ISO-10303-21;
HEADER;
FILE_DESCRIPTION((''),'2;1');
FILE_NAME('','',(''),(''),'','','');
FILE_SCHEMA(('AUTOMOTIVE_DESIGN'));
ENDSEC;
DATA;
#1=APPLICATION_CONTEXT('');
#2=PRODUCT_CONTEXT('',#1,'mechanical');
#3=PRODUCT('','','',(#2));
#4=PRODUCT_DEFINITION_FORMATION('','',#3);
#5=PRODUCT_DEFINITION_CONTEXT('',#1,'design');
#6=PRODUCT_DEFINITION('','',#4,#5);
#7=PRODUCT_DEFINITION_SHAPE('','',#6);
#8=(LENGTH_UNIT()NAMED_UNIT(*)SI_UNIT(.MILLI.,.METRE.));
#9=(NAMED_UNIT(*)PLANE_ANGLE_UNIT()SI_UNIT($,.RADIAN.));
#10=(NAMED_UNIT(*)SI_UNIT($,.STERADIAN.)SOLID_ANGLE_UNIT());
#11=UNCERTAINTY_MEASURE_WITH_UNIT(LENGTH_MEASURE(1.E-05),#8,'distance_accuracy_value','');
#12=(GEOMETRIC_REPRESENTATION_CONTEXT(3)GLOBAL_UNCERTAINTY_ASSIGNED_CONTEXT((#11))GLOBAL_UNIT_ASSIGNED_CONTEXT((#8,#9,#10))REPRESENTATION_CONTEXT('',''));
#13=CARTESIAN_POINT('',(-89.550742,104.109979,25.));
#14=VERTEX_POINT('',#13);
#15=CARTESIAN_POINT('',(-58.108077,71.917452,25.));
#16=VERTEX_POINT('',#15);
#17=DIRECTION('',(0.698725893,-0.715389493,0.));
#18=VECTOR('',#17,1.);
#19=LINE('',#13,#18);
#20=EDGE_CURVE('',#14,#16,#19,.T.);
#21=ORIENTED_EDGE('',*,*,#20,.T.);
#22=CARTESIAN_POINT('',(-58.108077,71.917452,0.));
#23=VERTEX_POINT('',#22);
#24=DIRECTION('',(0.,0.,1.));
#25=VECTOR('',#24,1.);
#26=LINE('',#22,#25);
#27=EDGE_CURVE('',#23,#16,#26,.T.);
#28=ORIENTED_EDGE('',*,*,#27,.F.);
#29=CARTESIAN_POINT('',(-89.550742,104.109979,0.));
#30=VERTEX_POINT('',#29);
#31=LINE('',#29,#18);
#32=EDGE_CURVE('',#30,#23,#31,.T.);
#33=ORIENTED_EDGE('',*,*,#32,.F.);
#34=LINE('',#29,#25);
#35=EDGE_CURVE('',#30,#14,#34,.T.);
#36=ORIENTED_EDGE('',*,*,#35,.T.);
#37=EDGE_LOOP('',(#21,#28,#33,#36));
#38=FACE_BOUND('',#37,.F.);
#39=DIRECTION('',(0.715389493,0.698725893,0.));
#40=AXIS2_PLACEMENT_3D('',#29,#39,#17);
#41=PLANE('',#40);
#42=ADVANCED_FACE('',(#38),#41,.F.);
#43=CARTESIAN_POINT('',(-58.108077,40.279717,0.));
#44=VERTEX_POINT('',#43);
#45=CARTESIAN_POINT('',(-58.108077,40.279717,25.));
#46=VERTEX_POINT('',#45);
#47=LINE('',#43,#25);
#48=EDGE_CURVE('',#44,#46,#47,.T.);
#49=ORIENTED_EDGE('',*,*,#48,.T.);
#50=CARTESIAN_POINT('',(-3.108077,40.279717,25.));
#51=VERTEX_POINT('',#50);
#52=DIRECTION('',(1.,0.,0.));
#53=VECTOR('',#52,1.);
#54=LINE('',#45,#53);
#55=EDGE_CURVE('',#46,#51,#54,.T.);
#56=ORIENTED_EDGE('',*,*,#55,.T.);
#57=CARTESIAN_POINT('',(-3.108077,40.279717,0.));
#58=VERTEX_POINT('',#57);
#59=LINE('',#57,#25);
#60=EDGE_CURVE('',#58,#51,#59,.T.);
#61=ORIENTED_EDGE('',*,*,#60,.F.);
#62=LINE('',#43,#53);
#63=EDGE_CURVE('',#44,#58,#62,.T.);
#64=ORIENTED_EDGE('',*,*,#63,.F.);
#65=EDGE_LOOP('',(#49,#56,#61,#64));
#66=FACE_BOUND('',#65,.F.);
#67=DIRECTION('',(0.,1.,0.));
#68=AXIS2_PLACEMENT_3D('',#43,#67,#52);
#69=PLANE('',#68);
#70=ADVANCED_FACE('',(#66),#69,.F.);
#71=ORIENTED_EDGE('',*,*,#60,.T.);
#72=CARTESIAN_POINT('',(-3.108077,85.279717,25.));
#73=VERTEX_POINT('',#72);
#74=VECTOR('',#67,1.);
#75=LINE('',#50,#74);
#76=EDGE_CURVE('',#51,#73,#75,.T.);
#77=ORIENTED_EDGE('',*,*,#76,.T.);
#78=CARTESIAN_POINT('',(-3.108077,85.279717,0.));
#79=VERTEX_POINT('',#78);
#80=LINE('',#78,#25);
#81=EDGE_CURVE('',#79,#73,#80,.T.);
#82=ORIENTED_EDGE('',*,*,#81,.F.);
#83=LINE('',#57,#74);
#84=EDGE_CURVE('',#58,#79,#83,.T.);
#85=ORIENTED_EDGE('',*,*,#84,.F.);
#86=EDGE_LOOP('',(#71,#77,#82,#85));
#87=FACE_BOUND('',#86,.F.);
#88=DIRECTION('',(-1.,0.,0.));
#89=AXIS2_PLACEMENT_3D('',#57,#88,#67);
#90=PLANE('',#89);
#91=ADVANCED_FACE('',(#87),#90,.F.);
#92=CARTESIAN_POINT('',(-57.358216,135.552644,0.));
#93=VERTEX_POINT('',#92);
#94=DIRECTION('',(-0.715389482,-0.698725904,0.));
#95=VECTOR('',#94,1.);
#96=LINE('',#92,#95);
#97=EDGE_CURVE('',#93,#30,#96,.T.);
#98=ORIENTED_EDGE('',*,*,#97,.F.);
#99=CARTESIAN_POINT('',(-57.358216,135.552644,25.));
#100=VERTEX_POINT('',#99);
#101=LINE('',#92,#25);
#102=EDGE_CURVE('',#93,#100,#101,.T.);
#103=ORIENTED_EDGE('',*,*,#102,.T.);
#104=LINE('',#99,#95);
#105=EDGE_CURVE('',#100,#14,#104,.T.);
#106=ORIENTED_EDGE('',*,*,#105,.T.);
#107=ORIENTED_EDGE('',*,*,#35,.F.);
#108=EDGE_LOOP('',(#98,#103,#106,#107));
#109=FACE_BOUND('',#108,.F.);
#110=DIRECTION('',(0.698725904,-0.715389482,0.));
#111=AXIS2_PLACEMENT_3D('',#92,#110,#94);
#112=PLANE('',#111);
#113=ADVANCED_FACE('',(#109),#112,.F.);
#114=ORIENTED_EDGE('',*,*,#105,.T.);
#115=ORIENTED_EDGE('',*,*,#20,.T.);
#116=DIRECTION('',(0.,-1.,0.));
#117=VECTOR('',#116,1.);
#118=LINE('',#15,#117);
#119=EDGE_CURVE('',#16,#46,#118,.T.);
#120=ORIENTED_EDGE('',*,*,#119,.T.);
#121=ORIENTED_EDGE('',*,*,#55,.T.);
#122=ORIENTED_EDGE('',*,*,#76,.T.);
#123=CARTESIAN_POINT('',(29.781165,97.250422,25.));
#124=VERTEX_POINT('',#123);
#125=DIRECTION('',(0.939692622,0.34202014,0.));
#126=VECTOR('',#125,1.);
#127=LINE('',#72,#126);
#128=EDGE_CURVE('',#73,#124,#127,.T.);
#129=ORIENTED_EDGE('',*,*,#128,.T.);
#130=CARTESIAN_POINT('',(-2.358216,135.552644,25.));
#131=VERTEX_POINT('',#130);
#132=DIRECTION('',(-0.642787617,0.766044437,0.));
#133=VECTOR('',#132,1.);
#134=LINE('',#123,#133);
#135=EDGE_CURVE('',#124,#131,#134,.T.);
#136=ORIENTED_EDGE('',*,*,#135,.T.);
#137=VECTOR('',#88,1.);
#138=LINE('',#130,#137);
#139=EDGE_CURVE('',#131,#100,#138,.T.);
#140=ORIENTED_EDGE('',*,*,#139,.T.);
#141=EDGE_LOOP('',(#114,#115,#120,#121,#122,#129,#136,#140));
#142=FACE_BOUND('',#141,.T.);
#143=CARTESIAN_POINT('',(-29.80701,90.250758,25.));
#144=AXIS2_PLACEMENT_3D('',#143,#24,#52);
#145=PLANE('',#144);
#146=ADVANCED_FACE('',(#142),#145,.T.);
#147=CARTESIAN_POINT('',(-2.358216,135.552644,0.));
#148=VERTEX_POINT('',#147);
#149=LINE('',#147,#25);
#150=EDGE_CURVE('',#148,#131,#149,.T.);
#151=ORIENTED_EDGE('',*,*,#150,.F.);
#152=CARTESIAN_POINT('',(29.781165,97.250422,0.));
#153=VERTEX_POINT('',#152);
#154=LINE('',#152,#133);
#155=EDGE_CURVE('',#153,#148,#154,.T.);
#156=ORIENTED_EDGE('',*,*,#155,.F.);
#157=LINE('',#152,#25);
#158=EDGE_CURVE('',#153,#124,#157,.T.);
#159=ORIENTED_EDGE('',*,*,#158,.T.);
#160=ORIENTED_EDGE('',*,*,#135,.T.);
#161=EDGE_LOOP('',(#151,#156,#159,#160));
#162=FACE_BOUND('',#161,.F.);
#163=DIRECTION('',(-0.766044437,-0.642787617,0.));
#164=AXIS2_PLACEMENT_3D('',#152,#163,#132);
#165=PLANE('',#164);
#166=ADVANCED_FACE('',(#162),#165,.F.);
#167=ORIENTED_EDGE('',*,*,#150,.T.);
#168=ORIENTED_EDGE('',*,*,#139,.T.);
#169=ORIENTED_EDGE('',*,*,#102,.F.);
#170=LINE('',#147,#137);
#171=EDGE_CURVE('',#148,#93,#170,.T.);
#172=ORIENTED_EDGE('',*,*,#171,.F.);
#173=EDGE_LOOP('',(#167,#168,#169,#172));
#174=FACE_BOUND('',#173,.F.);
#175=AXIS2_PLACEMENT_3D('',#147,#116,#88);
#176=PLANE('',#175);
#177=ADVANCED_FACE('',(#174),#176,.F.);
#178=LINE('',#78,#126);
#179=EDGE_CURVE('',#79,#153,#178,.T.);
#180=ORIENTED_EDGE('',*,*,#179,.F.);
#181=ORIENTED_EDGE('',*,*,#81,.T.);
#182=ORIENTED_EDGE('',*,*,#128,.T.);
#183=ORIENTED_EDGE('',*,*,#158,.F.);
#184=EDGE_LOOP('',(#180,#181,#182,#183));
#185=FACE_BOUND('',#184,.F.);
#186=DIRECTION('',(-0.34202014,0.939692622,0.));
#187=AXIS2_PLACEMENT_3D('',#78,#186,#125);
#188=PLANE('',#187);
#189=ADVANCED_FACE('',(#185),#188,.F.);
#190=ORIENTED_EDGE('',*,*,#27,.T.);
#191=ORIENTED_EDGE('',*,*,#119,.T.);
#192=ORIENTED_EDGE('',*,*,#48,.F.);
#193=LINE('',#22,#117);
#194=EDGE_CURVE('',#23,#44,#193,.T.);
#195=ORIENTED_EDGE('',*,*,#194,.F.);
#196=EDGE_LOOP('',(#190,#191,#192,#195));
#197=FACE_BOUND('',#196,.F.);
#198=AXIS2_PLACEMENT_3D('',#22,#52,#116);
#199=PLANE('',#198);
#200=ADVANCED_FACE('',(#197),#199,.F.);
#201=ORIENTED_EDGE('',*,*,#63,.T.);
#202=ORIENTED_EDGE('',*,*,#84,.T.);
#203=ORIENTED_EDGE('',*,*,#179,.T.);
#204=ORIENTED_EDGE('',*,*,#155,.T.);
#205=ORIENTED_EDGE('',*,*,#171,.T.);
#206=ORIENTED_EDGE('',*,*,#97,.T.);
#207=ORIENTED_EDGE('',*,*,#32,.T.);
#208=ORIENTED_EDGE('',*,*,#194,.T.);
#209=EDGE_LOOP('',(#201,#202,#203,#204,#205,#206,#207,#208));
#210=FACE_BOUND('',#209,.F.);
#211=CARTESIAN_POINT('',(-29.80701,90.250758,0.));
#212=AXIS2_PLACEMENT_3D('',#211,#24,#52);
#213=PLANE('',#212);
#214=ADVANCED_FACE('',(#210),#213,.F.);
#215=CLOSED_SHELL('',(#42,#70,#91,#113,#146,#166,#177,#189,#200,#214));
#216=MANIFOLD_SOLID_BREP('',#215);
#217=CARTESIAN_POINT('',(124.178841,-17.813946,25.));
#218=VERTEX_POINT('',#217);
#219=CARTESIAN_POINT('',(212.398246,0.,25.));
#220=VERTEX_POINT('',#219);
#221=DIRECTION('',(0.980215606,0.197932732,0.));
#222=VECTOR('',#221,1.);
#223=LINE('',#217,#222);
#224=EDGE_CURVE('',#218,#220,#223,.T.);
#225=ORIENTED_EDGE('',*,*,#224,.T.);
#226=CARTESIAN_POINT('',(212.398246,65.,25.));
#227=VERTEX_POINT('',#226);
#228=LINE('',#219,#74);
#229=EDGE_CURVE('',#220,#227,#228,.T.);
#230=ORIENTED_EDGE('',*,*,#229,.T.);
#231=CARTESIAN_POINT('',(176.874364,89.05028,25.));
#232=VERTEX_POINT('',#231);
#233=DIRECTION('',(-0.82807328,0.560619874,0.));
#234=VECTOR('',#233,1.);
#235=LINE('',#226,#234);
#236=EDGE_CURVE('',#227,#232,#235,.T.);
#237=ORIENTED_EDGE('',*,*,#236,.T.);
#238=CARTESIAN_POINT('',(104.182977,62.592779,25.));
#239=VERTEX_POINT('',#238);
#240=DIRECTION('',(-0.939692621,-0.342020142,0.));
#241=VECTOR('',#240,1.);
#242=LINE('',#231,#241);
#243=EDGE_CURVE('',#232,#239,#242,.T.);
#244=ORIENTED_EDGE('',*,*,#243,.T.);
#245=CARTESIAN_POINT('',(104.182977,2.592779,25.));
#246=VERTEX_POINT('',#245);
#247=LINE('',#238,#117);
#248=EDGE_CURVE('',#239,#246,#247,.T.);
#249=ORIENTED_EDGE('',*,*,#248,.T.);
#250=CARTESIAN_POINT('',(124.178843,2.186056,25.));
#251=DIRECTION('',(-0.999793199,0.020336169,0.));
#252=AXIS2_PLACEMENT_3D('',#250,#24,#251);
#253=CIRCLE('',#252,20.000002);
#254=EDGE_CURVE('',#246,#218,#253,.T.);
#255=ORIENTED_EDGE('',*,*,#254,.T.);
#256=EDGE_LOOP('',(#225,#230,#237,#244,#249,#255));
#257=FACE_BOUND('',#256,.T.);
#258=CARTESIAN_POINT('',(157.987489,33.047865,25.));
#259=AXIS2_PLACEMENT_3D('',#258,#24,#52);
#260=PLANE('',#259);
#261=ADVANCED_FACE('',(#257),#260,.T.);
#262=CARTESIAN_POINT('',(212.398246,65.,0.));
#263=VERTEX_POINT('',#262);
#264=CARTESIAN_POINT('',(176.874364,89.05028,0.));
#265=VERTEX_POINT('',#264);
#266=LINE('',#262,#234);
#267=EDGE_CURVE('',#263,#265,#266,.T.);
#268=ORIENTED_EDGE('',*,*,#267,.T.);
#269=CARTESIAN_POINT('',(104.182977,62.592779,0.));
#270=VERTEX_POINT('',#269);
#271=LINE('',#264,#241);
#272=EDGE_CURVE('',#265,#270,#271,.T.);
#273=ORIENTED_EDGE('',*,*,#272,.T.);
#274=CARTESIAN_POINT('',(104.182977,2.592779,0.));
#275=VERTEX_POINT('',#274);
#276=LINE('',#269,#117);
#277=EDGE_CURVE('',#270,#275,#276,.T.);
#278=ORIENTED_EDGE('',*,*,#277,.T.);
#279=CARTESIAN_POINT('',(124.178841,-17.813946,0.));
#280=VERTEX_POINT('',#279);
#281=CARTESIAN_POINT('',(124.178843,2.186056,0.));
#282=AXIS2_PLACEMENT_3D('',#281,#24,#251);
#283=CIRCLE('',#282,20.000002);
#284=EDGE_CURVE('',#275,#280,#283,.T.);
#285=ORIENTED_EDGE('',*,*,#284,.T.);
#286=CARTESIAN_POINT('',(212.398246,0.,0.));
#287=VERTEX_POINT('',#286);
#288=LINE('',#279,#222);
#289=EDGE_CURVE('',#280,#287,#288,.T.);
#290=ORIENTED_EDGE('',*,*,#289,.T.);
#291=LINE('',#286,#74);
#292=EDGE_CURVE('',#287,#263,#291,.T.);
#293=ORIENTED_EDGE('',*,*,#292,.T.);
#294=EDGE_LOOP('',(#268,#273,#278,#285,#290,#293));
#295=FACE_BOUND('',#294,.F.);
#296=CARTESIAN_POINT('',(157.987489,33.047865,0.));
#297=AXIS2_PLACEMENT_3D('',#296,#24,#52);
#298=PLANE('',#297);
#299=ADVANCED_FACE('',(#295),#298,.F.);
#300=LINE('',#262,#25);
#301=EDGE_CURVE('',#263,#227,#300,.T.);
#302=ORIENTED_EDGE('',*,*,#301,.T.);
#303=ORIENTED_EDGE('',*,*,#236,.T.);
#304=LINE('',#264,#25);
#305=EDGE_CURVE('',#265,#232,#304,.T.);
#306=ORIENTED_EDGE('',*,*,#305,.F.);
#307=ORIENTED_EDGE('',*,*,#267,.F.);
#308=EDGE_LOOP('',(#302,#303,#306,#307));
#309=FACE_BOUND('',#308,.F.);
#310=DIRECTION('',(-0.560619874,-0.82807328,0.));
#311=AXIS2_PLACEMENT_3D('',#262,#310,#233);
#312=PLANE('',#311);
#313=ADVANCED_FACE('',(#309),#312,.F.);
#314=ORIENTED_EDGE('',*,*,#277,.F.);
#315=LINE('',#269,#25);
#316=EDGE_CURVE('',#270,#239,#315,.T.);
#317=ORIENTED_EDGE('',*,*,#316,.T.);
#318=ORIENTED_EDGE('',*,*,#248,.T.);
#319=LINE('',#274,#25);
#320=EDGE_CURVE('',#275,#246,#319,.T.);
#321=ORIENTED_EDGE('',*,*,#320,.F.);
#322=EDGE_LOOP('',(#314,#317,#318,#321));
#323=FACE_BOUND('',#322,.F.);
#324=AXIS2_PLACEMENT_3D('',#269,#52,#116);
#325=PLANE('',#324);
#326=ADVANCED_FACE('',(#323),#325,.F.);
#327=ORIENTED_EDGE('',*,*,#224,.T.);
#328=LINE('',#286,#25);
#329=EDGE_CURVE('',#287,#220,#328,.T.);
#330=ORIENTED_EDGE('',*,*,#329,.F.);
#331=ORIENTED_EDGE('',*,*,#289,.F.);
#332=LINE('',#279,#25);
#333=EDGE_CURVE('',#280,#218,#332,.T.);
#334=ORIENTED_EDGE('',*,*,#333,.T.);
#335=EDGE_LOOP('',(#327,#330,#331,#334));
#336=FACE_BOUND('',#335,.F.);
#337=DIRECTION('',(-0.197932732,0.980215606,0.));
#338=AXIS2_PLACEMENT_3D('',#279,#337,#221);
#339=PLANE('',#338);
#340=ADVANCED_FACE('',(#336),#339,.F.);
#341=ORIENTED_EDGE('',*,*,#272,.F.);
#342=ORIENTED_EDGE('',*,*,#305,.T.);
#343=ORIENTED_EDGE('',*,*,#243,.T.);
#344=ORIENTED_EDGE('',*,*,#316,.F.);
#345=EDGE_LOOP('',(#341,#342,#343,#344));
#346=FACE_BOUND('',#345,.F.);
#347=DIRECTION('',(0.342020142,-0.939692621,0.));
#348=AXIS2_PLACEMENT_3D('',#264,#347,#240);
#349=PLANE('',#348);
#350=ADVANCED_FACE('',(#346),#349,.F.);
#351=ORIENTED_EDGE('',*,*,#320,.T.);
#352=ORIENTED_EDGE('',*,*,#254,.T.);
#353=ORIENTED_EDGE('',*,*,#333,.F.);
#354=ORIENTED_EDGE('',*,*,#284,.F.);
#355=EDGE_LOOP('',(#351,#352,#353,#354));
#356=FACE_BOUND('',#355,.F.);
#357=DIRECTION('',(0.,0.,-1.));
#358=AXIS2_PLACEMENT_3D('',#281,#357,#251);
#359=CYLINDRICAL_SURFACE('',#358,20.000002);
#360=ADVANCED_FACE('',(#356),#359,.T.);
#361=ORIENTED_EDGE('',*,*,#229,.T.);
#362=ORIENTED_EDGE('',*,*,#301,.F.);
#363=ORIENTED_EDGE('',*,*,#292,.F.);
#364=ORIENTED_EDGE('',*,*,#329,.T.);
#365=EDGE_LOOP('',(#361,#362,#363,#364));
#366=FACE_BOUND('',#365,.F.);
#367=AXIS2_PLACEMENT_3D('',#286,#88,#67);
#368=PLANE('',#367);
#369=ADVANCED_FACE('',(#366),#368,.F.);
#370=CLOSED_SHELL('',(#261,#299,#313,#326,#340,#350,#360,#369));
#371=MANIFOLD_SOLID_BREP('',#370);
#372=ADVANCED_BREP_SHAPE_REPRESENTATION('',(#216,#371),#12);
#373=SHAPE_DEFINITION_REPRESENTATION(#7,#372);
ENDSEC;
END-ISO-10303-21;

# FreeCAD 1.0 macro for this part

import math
import FreeCAD as App
import Part
import Sketcher
from FreeCAD import Vector
Q = App.Units.Quantity


def add_polygon(sketch, points):
    """Adds a closed chain of lines whose ends are joined by coincident constraints."""
    first, n = sketch.GeometryCount, len(points)
    for a, b in zip(points, points[1:] + points[:1]):
        sketch.addGeometry(Part.LineSegment(App.Vector(*a, 0), App.Vector(*b, 0)), False)
    for i in range(n):
        sketch.addConstraint(Sketcher.Constraint("Coincident", first + i, 2, first + (i + 1) % n, 1))

doc = App.newDocument("Part")
body = doc.addObject("PartDesign::Body", "Body")
body.AllowCompound = True

# Sketch on XY plane
sketch1 = body.newObject("Sketcher::SketchObject", "Sketch")
sketch1.AttachmentSupport = (doc.getObject("XY_Plane"), [""])
sketch1.MapMode = "FlatFace"
add_polygon(sketch1, [(-58, 72), (-58, 40), (-3, 40), (-3, 85), (30, 97), (-2, 136), (-57, 136), (-90, 104)])  # lines 0-7
sketch1.addGeometry(Part.LineSegment(Vector(124, -18, 0), Vector(212, 0, 0)), False)  # 8
sketch1.addGeometry(Part.LineSegment(Vector(212, 0, 0), Vector(212, 65, 0)), False)  # 9
sketch1.addGeometry(Part.LineSegment(Vector(212, 65, 0), Vector(177, 89, 0)), False)  # 10
sketch1.addGeometry(Part.LineSegment(Vector(177, 89, 0), Vector(104, 63, 0)), False)  # 11
sketch1.addGeometry(Part.LineSegment(Vector(104, 63, 0), Vector(104, 3, 0)), False)  # 12
sketch1.addGeometry(Part.ArcOfCircle(Part.Circle(Vector(124, 2, 0), Vector(0, 0, 1), 20), math.radians(179), math.radians(270)), False)  # 13
sketch1.addConstraint(Sketcher.Constraint("Coincident", 8, 2, 9, 1))
sketch1.addConstraint(Sketcher.Constraint("Coincident", 9, 2, 10, 1))
sketch1.addConstraint(Sketcher.Constraint("Coincident", 10, 2, 11, 1))
sketch1.addConstraint(Sketcher.Constraint("Coincident", 11, 2, 12, 1))
sketch1.addConstraint(Sketcher.Constraint("Coincident", 12, 2, 13, 1))
sketch1.addConstraint(Sketcher.Constraint("Coincident", 13, 2, 8, 1))
sketch1.addConstraint(Sketcher.Constraint("Vertical", 0))
sketch1.addConstraint(Sketcher.Constraint("Horizontal", 1))
sketch1.addConstraint(Sketcher.Constraint("Vertical", 2))
sketch1.addConstraint(Sketcher.Constraint("Horizontal", 5))
sketch1.addConstraint(Sketcher.Constraint("Vertical", 9))
sketch1.addConstraint(Sketcher.Constraint("Vertical", 12))
sketch1.addConstraint(Sketcher.Constraint("PointOnObject", 8, 2, -1))
sketch1.addConstraint(Sketcher.Constraint("Perpendicular", 6, 7))
sketch1.addConstraint(Sketcher.Constraint("Parallel", 3, 11))
sketch1.addConstraint(Sketcher.Constraint("Equal", 1, 5))
sketch1.addConstraint(Sketcher.Constraint("Equal", 6, 7))
sketch1.addConstraint(Sketcher.Constraint("Radius", 13, 20.000002))
sketch1.addConstraint(Sketcher.Constraint("DistanceX", 1, 1, 1, 2, 55.0))
sketch1.addConstraint(Sketcher.Constraint("DistanceY", 2, 1, 2, 2, 45.0))
sketch1.addConstraint(Sketcher.Constraint("DistanceY", 9, 1, 9, 2, 65.0))
sketch1.addConstraint(Sketcher.Constraint("DistanceY", 12, 2, 12, 1, 60.0))
sketch1.addConstraint(Sketcher.Constraint("Angle", 3, Q("20 deg")))
sketch1.addConstraint(Sketcher.Constraint("Angle", 4, Q("130.000001 deg")))
sketch1.addConstraint(Sketcher.Constraint("Distance", 3, 35.0))
sketch1.addConstraint(Sketcher.Constraint("Distance", 4, 50.0))
sketch1.addConstraint(Sketcher.Constraint("Distance", 6, 44.999999))
sketch1.addConstraint(Sketcher.Constraint("Distance", 8, 90.000001))
sketch1.addConstraint(Sketcher.Constraint("DistanceX", 3, 2, 10, 2, 147.093199))
sketch1.addConstraint(Sketcher.Constraint("DistanceY", 11, 2, 10, 2, 26.457501))
sketch1.addConstraint(Sketcher.Constraint("DistanceY", -1, 1, 3, 2, 97.250422))
sketch1.addConstraint(Sketcher.Constraint("DistanceX", 6, 2, -1, 1, 89.550742))
sketch1.addConstraint(Sketcher.Constraint("DistanceY", -1, 1, 10, 2, 89.05028))
sketch1.addConstraint(Sketcher.Constraint("DistanceX", -1, 1, 13, 2, 124.178841))
sketch1.addConstraint(Sketcher.Constraint("DistanceX", 0, 2, 13, 3, 182.28692))
pad1 = body.newObject("PartDesign::Pad", "Pad")
pad1.Profile = sketch1
pad1.Length = 25

doc.recompute()
